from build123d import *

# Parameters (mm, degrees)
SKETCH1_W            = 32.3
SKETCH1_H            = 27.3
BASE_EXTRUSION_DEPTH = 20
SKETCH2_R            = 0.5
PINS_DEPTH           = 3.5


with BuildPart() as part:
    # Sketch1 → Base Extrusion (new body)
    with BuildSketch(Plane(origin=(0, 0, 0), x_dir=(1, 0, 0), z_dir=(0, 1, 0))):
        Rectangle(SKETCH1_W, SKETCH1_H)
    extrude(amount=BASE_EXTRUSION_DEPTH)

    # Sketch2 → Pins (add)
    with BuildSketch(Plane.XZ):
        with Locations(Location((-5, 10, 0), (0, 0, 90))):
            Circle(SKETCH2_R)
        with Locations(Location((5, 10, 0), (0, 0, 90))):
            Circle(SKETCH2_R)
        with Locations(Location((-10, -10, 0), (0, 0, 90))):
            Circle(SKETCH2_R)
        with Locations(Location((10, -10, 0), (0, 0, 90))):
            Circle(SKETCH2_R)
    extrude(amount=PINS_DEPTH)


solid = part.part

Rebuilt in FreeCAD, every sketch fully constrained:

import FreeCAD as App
import Part
import Sketcher

V = App.Vector

doc = App.newDocument("Part")
body = doc.addObject("PartDesign::Body", "Body")

sketch1 = body.newObject("Sketcher::SketchObject", "Sketch")
sketch1.AttachmentSupport = (doc.getObject("XZ_Plane"), [""])
sketch1.MapMode = "FlatFace"
sketch1.addGeometry(Part.LineSegment(V(-16, -14, 0), V(-16, 14, 0)), False)
sketch1.addGeometry(Part.LineSegment(V(-16, 14, 0), V(16, 14, 0)), False)
sketch1.addGeometry(Part.LineSegment(V(16, 14, 0), V(16, -14, 0)), False)
sketch1.addGeometry(Part.LineSegment(V(16, -14, 0), V(-16, -14, 0)), False)
sketch1.addConstraint(Sketcher.Constraint("Coincident", 0, 2, 1, 1))
sketch1.addConstraint(Sketcher.Constraint("Coincident", 1, 2, 2, 1))
sketch1.addConstraint(Sketcher.Constraint("Coincident", 2, 2, 3, 1))
sketch1.addConstraint(Sketcher.Constraint("Coincident", 3, 2, 0, 1))
sketch1.addConstraint(Sketcher.Constraint("Vertical", 0))
sketch1.addConstraint(Sketcher.Constraint("Horizontal", 1))
sketch1.addConstraint(Sketcher.Constraint("Vertical", 2))
sketch1.addConstraint(Sketcher.Constraint("Horizontal", 3))
sketch1.addConstraint(Sketcher.Constraint("Symmetric", 0, 2, 2, 2, -1, 1))
sketch1.addConstraint(Sketcher.Constraint("DistanceX", 1, 1, 1, 2, 32.3))
sketch1.addConstraint(Sketcher.Constraint("DistanceY", 0, 1, 0, 2, 27.3))
pad1 = body.newObject("PartDesign::Pad", "Pad")
pad1.Profile = sketch1
pad1.Length = 20
pad1.Reversed = True

sketch2 = body.newObject("Sketcher::SketchObject", "Sketch001")
sketch2.AttachmentSupport = (doc.getObject("XZ_Plane"), [""])
sketch2.MapMode = "FlatFace"
sketch2.addGeometry(Part.Circle(V(-5, 10, 0), V(0, 0, 1), 0.5), False)
sketch2.addGeometry(Part.Circle(V(5, 10, 0), V(0, 0, 1), 0.5), False)
sketch2.addGeometry(Part.Circle(V(-10, -10, 0), V(0, 0, 1), 0.5), False)
sketch2.addGeometry(Part.Circle(V(10, -10, 0), V(0, 0, 1), 0.5), False)
sketch2.addConstraint(Sketcher.Constraint("Equal", 0, 1))
sketch2.addConstraint(Sketcher.Constraint("Equal", 1, 2))
sketch2.addConstraint(Sketcher.Constraint("Equal", 2, 3))
sketch2.addConstraint(Sketcher.Constraint("Symmetric", 0, 3, 1, 3, -2))
sketch2.addConstraint(Sketcher.Constraint("Symmetric", 2, 3, 3, 3, -2))
sketch2.addConstraint(Sketcher.Constraint("Diameter", 0, 1.0))
sketch2.addConstraint(Sketcher.Constraint("DistanceX", 0, 3, -1, 1, 5.0))
sketch2.addConstraint(Sketcher.Constraint("DistanceY", -1, 1, 0, 3, 10.0))
sketch2.addConstraint(Sketcher.Constraint("DistanceX", 2, 3, -1, 1, 10.0))
sketch2.addConstraint(Sketcher.Constraint("DistanceY", 2, 3, -1, 1, 10.0))
pad2 = body.newObject("PartDesign::Pad", "Pad001")
pad2.Profile = sketch2
pad2.Length = 3.5

doc.recompute()
